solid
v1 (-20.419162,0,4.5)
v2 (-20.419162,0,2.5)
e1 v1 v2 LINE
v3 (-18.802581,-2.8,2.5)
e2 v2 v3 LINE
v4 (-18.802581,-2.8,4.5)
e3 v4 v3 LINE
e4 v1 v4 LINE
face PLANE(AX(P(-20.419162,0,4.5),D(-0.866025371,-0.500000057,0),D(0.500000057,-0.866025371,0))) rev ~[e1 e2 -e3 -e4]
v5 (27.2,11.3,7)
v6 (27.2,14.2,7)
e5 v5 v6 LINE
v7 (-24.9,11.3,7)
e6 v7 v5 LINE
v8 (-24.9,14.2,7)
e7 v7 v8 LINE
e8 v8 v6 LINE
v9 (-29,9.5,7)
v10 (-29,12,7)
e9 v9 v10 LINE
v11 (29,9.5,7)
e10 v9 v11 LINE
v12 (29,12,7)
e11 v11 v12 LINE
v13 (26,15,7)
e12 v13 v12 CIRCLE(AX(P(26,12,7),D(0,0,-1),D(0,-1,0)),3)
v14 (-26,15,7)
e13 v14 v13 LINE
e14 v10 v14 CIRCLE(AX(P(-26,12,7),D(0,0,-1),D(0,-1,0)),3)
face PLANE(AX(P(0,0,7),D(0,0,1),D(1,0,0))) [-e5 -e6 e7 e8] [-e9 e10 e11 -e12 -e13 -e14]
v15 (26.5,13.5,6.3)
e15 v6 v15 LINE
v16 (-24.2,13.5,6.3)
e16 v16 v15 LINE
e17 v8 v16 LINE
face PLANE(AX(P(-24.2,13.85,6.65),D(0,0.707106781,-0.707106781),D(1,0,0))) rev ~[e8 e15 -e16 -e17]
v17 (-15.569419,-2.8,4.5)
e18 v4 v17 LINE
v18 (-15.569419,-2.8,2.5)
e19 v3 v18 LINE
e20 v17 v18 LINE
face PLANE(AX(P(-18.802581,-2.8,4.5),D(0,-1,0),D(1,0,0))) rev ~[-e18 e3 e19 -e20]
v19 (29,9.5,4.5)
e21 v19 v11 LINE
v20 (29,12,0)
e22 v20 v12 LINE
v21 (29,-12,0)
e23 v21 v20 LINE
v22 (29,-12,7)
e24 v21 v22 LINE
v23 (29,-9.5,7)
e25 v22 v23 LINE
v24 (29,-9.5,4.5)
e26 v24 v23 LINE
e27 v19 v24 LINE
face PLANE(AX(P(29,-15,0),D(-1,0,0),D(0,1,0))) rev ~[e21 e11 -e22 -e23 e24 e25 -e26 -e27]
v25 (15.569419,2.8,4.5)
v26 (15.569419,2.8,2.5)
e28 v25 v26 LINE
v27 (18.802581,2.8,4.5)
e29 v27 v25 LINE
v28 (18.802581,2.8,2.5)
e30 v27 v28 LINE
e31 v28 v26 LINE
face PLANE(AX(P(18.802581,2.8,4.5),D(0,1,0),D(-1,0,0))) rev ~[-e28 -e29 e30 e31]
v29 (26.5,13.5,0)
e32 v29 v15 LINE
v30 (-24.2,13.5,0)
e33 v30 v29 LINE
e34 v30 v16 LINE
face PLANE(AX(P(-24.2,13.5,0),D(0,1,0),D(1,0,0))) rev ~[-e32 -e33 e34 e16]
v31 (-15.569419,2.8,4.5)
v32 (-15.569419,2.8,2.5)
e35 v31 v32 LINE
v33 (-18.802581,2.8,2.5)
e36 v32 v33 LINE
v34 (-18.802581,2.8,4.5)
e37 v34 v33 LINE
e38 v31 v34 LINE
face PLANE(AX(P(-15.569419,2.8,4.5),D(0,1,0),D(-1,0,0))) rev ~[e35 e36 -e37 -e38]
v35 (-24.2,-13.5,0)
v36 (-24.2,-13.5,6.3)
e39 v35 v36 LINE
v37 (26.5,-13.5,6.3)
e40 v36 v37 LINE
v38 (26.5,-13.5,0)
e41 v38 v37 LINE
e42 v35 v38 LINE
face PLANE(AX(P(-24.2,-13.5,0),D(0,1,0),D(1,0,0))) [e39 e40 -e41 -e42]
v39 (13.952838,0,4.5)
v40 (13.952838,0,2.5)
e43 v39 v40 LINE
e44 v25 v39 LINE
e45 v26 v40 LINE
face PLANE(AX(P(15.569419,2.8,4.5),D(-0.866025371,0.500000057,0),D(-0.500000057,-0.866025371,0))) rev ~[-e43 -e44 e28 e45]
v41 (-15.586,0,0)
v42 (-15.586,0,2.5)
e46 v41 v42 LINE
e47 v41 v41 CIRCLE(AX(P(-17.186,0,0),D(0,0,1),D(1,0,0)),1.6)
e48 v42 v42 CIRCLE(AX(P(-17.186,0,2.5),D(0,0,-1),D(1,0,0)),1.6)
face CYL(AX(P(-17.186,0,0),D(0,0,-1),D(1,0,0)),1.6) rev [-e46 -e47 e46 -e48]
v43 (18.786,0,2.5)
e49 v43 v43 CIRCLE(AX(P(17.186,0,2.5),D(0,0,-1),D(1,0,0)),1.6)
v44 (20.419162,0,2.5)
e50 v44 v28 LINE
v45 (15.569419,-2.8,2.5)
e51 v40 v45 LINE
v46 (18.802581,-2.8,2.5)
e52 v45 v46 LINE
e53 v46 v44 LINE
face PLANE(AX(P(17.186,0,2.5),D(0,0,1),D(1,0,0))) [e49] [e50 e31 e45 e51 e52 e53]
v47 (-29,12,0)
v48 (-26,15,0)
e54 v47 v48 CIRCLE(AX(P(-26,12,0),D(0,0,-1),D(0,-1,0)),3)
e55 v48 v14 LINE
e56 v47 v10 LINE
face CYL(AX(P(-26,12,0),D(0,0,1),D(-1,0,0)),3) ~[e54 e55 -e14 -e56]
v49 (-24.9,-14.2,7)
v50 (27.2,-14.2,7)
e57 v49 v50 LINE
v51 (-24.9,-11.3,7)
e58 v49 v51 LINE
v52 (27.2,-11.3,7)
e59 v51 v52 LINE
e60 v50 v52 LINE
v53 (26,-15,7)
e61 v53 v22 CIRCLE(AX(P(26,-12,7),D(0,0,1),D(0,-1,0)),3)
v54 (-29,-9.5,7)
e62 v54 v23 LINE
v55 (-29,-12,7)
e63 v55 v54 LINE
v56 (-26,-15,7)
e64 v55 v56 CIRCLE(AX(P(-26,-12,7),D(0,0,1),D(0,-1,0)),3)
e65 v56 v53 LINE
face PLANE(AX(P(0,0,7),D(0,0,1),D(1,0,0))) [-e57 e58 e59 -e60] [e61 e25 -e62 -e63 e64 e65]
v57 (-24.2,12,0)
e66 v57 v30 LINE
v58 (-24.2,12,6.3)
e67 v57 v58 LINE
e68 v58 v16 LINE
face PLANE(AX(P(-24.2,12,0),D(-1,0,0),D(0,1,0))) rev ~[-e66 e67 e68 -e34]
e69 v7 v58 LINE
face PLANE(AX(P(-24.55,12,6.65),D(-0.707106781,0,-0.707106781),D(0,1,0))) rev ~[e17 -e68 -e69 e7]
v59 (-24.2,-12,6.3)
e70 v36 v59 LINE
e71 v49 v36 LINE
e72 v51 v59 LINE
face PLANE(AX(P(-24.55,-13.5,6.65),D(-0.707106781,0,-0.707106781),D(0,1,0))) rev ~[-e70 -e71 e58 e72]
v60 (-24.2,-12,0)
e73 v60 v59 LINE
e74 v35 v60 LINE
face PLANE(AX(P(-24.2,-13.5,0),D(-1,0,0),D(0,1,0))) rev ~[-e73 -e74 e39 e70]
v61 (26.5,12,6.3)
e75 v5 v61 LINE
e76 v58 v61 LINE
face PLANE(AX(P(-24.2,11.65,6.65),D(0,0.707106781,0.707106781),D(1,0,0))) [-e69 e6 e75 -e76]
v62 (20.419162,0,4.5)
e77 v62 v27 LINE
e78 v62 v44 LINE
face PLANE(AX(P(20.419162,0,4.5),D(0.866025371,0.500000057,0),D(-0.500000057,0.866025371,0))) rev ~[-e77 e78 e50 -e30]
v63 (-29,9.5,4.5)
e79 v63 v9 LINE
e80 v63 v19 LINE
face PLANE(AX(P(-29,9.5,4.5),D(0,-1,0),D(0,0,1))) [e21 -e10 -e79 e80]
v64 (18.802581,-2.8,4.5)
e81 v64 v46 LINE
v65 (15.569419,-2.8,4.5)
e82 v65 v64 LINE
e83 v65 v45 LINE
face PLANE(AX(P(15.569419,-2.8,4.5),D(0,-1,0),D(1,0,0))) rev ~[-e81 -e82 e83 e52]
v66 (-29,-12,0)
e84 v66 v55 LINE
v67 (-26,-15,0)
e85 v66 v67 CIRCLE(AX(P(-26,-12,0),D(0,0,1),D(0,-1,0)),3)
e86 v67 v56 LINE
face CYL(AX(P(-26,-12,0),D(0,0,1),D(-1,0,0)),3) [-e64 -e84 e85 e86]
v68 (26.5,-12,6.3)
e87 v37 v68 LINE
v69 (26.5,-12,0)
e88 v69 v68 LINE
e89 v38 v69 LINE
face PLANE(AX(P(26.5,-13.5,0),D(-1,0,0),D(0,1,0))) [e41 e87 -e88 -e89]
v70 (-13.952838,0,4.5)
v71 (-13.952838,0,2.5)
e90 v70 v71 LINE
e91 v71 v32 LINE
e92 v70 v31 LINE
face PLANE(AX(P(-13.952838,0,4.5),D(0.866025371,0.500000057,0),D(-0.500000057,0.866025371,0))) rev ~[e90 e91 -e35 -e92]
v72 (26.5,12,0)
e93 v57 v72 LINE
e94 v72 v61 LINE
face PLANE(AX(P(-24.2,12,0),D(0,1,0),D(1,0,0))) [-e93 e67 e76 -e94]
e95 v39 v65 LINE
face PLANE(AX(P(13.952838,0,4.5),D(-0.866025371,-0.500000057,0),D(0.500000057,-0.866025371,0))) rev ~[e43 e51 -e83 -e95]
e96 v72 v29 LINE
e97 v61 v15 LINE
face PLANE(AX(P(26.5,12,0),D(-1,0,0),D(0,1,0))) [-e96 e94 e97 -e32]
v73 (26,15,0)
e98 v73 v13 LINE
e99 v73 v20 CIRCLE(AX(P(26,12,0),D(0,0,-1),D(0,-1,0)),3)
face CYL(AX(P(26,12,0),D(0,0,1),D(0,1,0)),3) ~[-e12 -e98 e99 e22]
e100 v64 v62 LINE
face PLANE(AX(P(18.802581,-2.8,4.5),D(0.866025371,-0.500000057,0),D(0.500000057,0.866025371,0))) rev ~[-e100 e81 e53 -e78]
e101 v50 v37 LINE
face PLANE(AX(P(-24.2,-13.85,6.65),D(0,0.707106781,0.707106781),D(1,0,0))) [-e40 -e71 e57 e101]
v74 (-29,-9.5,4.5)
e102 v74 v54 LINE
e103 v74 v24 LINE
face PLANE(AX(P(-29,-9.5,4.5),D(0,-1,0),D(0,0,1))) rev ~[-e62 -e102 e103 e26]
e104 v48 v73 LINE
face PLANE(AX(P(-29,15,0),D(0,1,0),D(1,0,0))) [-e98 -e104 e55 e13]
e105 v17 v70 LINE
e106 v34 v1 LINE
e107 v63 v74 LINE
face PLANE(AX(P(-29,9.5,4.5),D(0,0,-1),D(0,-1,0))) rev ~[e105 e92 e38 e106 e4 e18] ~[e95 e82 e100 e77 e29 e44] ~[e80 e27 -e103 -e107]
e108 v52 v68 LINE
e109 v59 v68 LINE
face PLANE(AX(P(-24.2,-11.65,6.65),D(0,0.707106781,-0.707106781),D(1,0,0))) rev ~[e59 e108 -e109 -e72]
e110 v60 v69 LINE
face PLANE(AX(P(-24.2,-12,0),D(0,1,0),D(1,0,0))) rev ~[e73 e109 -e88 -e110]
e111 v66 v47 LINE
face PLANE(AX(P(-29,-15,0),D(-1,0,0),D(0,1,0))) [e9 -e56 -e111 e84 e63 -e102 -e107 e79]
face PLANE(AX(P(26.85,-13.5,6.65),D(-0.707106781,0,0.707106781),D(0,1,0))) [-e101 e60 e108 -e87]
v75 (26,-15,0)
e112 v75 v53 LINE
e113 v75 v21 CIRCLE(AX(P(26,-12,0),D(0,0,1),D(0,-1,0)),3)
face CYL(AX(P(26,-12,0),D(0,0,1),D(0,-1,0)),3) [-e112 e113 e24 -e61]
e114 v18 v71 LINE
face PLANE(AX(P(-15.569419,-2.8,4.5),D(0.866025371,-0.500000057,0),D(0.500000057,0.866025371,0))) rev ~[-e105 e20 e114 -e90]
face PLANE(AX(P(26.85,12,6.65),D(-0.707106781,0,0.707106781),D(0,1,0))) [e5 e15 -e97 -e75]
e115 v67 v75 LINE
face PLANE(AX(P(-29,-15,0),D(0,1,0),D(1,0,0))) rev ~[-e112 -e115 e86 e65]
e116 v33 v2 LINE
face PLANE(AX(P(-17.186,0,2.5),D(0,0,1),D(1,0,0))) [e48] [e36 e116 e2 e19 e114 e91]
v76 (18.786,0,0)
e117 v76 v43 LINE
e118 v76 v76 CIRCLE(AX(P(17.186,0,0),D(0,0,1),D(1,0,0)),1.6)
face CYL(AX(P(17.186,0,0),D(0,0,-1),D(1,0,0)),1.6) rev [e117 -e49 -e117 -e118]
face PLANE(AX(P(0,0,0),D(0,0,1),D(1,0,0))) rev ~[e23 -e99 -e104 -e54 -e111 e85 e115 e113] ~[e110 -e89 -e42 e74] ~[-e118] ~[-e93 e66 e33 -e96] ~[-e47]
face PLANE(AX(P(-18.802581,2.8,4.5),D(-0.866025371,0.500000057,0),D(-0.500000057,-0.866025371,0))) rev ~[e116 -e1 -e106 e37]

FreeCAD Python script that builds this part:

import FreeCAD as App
import Part
import Sketcher

V = App.Vector
Q = App.Units.Quantity


def edges_at(feature, points):
    """Names of the edges that pass closest to the given points."""
    edges = feature.Shape.Edges
    near = lambda p: min(range(len(edges)), key=lambda i: edges[i].distToShape(Part.Vertex(*p))[0])
    return sorted({f"Edge{near(p) + 1}" for p in points})


def add_polygon(sketch, points):
    """Adds a closed chain of lines whose ends are joined by coincident constraints."""
    first, n = sketch.GeometryCount, len(points)
    for a, b in zip(points, points[1:] + points[:1]):
        sketch.addGeometry(Part.LineSegment(App.Vector(*a, 0), App.Vector(*b, 0)), False)
    for i in range(n):
        sketch.addConstraint(Sketcher.Constraint("Coincident", first + i, 2, first + (i + 1) % n, 1))

doc = App.newDocument("Part")
body = doc.addObject("PartDesign::Body", "Body")

sketch1 = body.newObject("Sketcher::SketchObject", "Sketch")
sketch1.AttachmentSupport = (doc.getObject("XY_Plane"), [""])
sketch1.MapMode = "FlatFace"
add_polygon(sketch1, [(-29, 15), (-29, -15), (29, -15), (29, 15)])
add_polygon(sketch1, [(26.5, -13.5), (-24.2, -13.5), (-24.2, -12), (26.5, -12)])
sketch1.addGeometry(Part.Circle(V(-17.2, 0, 0), V(0, 0, 1), 1.6), False)
sketch1.addGeometry(Part.Circle(V(17.2, 0, 0), V(0, 0, 1), 1.6), False)
add_polygon(sketch1, [(26.5, 12), (-24.2, 12), (-24.2, 13.5), (26.5, 13.5)])
sketch1.addConstraint(Sketcher.Constraint("Vertical", 0))
sketch1.addConstraint(Sketcher.Constraint("Horizontal", 1))
sketch1.addConstraint(Sketcher.Constraint("Vertical", 2))
sketch1.addConstraint(Sketcher.Constraint("Horizontal", 3))
sketch1.addConstraint(Sketcher.Constraint("Horizontal", 4))
sketch1.addConstraint(Sketcher.Constraint("Vertical", 5))
sketch1.addConstraint(Sketcher.Constraint("Horizontal", 6))
sketch1.addConstraint(Sketcher.Constraint("Vertical", 7))
sketch1.addConstraint(Sketcher.Constraint("Horizontal", 10))
sketch1.addConstraint(Sketcher.Constraint("Vertical", 11))
sketch1.addConstraint(Sketcher.Constraint("Horizontal", 12))
sketch1.addConstraint(Sketcher.Constraint("Vertical", 13))
sketch1.addConstraint(Sketcher.Constraint("Equal", 8, 9))
sketch1.addConstraint(Sketcher.Constraint("Symmetric", 8, 3, 9, 3, -1, 1))
sketch1.addConstraint(Sketcher.Constraint("Symmetric", 0, 2, 2, 2, -1, 1))
sketch1.addConstraint(Sketcher.Constraint("Symmetric", 5, 2, 10, 2, -1))
sketch1.addConstraint(Sketcher.Constraint("Symmetric", 7, 2, 12, 2, -1))
sketch1.addConstraint(Sketcher.Constraint("PointOnObject", 8, 3, -1))
sketch1.addConstraint(Sketcher.Constraint("Diameter", 8, Q("3.2 mm")))
sketch1.addConstraint(Sketcher.Constraint("DistanceX", 1, 1, 1, 2, Q("58 mm")))
sketch1.addConstraint(Sketcher.Constraint("DistanceY", 0, 2, 0, 1, Q("30 mm")))
sketch1.addConstraint(Sketcher.Constraint("DistanceX", 4, 2, 4, 1, Q("50.7 mm")))
sketch1.addConstraint(Sketcher.Constraint("DistanceY", 5, 1, 5, 2, Q("1.5 mm")))
sketch1.addConstraint(Sketcher.Constraint("DistanceY", 5, 2, -1, 1, Q("12 mm")))
sketch1.addConstraint(Sketcher.Constraint("DistanceX", 4, 2, -1, 1, Q("24.2 mm")))
sketch1.addConstraint(Sketcher.Constraint("DistanceX", 8, 3, -1, 1, Q("17.186 mm")))
pad1 = body.newObject("PartDesign::Pad", "Pad")
pad1.Profile = sketch1
pad1.Length = 7

sketch2 = body.newObject("Sketcher::SketchObject", "Sketch001")
sketch2.AttachmentSupport = (doc.getObject("YZ_Plane"), [""])
sketch2.MapMode = "FlatFace"
sketch2.AttachmentOffset = App.Placement(V(0, 0, -29), App.Rotation())
add_polygon(sketch2, [(9.5, 7), (9.5, 4.5), (-9.5, 4.5), (-9.5, 7)])
sketch2.addConstraint(Sketcher.Constraint("Vertical", 0))
sketch2.addConstraint(Sketcher.Constraint("Horizontal", 1))
sketch2.addConstraint(Sketcher.Constraint("Vertical", 2))
sketch2.addConstraint(Sketcher.Constraint("Horizontal", 3))
sketch2.addConstraint(Sketcher.Constraint("DistanceX", 1, 2, 1, 1, Q("19 mm")))
sketch2.addConstraint(Sketcher.Constraint("DistanceY", 0, 2, 0, 1, Q("2.5 mm")))
sketch2.addConstraint(Sketcher.Constraint("DistanceY", -1, 1, 2, 2, Q("7 mm")))
sketch2.addConstraint(Sketcher.Constraint("DistanceX", -1, 1, 0, 2, Q("9.5 mm")))
pocket1 = body.newObject("PartDesign::Pocket", "Pocket")
pocket1.Profile = sketch2
pocket1.Length = 58
pocket1.Reversed = True

sketch3 = body.newObject("Sketcher::SketchObject", "Sketch002")
sketch3.AttachmentSupport = (doc.getObject("XY_Plane"), [""])
sketch3.MapMode = "FlatFace"
sketch3.AttachmentOffset = App.Placement(V(0, 0, 4.5), App.Rotation())
add_polygon(sketch3, [(-15.6, -2.8), (-14, 0), (-15.6, 2.8), (-18.8, 2.8), (-20.4, 0), (-18.8, -2.8)])
add_polygon(sketch3, [(14, 0), (15.6, -2.8), (18.8, -2.8), (20.4, 0), (18.8, 2.8), (15.6, 2.8)])
sketch3.addConstraint(Sketcher.Constraint("Horizontal", 2))
sketch3.addConstraint(Sketcher.Constraint("Horizontal", 5))
sketch3.addConstraint(Sketcher.Constraint("Horizontal", 7))
sketch3.addConstraint(Sketcher.Constraint("Horizontal", 10))
sketch3.addConstraint(Sketcher.Constraint("Symmetric", 1, 2, 6, 2, -1, 1))
sketch3.addConstraint(Sketcher.Constraint("Symmetric", 3, 2, 8, 2, -1, 1))
sketch3.addConstraint(Sketcher.Constraint("Symmetric", 4, 2, 9, 2, -1, 1))
sketch3.addConstraint(Sketcher.Constraint("Symmetric", 0, 2, 11, 2, -1, 1))
sketch3.addConstraint(Sketcher.Constraint("Symmetric", 5, 2, 6, 2, -2))
sketch3.addConstraint(Sketcher.Constraint("PointOnObject", 0, 2, -1))
sketch3.addConstraint(Sketcher.Constraint("PointOnObject", 3, 2, -1))
sketch3.addConstraint(Sketcher.Constraint("Parallel", 0, 3))
sketch3.addConstraint(Sketcher.Constraint("Parallel", 1, 4))
sketch3.addConstraint(Sketcher.Constraint("Parallel", 3, 8))
sketch3.addConstraint(Sketcher.Constraint("Parallel", 8, 11))
sketch3.addConstraint(Sketcher.Constraint("Angle", 0, Q("59.999996 deg")))
sketch3.addConstraint(Sketcher.Constraint("DistanceY", -1, 1, 1, 2, Q("2.8 mm")))
sketch3.addConstraint(Sketcher.Constraint("DistanceX", 4, 2, 6, 2, Q("34.372 mm")))
sketch3.addConstraint(Sketcher.Constraint("DistanceX", 2, 2, 2, 1, Q("3.233162 mm")))
pocket2 = body.newObject("PartDesign::Pocket", "Pocket001")
pocket2.Profile = sketch3
pocket2.Length = 2
doc.recompute()

fillet = body.newObject("PartDesign::Fillet", "Fillet")
fillet.Base = (pocket2, edges_at(pocket2, [
    (-29, -15, 3.5),
    (-29, 15, 3.5),
    (29, -15, 3.5),
    (29, 15, 3.5),
]))
fillet.Radius = 3
doc.recompute()

chamfer = body.newObject("PartDesign::Chamfer", "Chamfer")
chamfer.Base = (fillet, edges_at(fillet, [
    (1.15, -12, 7),
    (1.15, -13.5, 7),
    (26.5, -12.75, 7),
    (-24.2, -12.75, 7),
    (1.15, 13.5, 7),
    (1.15, 12, 7),
    (-24.2, 12.75, 7),
    (26.5, 12.75, 7),
]))
chamfer.Size = 0.7

doc.recompute()
